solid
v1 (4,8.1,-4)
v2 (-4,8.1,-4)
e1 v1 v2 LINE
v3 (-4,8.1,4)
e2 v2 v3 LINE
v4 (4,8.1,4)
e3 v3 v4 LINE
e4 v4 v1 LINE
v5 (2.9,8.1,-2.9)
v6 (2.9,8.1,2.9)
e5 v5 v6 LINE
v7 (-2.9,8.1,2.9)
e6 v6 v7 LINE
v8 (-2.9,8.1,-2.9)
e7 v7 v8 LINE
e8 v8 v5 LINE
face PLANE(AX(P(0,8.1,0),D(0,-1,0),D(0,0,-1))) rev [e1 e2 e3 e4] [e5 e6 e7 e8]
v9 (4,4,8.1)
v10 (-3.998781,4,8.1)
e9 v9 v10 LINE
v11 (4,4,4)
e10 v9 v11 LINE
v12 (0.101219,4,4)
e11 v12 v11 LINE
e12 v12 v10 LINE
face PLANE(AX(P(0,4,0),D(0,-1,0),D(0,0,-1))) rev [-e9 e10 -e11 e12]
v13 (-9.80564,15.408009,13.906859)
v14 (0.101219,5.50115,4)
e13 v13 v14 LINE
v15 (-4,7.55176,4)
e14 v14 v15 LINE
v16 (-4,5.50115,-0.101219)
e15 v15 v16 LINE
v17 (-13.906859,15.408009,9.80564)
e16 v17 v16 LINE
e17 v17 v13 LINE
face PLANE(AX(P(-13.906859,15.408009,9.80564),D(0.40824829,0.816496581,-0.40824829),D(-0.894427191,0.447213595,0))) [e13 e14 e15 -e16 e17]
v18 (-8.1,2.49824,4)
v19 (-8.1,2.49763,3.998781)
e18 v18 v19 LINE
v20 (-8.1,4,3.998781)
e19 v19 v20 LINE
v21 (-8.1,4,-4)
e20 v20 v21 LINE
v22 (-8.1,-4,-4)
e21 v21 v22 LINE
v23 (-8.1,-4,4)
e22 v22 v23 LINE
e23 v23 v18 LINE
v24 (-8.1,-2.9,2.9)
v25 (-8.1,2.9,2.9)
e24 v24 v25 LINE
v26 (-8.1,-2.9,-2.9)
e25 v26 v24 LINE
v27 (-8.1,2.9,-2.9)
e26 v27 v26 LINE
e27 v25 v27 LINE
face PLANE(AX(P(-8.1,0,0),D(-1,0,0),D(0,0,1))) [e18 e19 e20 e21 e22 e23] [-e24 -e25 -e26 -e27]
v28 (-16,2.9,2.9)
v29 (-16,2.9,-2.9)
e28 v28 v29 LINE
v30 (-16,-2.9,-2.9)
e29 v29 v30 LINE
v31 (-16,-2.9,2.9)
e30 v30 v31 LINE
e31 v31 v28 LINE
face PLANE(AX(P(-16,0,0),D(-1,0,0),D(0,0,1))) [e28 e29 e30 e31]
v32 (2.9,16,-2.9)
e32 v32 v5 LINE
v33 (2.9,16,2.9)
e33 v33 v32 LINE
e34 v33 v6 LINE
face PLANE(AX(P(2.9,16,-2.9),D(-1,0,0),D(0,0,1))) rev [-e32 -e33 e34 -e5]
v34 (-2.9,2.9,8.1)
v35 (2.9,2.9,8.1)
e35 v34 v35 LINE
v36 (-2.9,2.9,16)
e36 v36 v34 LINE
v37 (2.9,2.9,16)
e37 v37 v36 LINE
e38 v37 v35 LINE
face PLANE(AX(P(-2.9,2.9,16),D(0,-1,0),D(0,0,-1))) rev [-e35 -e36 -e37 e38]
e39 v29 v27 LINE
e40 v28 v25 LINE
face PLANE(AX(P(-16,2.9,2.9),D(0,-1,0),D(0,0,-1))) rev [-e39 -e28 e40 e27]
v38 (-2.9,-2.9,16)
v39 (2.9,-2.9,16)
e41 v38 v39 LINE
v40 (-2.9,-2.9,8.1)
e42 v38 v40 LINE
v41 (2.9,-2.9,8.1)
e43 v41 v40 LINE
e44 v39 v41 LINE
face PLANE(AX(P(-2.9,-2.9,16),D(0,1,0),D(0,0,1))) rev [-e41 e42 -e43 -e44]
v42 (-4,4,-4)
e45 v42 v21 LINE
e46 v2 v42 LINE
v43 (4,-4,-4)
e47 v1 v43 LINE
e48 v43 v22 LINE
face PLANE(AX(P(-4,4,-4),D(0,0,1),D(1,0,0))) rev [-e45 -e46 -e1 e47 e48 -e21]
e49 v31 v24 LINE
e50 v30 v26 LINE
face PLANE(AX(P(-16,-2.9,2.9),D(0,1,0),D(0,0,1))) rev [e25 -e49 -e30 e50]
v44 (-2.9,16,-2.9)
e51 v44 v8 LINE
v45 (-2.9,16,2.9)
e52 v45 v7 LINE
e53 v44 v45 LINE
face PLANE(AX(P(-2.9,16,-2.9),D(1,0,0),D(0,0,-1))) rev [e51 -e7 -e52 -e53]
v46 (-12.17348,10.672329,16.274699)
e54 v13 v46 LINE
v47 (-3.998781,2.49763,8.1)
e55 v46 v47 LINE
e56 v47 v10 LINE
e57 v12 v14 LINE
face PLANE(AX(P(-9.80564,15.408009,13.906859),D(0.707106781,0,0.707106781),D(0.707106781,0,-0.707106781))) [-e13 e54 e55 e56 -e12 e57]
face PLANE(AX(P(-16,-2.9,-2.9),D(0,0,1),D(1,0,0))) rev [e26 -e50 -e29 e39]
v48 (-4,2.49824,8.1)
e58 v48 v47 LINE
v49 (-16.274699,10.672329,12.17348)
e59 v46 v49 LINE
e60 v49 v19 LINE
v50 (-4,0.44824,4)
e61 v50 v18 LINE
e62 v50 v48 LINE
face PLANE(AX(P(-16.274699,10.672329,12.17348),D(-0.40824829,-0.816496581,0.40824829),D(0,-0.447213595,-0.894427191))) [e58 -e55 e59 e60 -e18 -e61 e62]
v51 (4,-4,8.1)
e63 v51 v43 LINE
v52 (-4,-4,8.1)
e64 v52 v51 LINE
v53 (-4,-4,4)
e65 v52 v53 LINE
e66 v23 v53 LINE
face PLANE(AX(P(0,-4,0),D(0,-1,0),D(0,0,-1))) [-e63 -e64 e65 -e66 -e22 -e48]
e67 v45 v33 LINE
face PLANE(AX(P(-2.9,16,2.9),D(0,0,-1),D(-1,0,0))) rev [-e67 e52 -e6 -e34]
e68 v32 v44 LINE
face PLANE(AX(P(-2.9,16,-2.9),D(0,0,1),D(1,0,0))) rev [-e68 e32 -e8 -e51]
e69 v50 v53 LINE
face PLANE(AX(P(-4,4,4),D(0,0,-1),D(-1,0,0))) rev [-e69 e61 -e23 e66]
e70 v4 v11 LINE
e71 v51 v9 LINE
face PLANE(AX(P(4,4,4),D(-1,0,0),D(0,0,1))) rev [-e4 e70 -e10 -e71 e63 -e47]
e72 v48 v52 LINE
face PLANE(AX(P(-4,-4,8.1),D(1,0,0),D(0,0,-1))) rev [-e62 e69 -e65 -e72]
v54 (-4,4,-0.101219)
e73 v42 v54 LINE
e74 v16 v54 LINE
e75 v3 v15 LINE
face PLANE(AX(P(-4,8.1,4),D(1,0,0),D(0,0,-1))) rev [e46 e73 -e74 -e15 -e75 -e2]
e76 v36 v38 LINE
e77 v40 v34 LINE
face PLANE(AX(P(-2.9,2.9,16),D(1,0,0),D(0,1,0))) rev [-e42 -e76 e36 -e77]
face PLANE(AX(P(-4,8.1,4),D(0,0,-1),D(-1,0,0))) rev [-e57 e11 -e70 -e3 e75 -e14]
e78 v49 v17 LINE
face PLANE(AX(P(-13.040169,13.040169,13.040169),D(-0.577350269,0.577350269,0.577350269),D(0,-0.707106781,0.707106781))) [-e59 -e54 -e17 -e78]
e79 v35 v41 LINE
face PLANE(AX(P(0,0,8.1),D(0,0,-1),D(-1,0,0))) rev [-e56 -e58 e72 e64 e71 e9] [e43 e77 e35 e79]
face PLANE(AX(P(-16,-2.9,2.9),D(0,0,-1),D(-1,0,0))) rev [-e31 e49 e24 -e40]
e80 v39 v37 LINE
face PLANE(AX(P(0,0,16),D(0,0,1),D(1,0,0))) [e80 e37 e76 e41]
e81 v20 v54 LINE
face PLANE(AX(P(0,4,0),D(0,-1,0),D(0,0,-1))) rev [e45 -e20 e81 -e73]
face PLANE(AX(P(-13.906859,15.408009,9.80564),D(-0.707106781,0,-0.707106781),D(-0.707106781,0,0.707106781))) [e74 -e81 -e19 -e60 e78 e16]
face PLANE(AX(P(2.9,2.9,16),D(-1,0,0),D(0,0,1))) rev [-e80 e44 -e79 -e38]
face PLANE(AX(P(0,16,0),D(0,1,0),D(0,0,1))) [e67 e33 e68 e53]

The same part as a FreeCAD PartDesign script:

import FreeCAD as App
import Part
import Sketcher
from FreeCAD import Vector
Q = App.Units.Quantity

doc = App.newDocument("Part")
body = doc.addObject("PartDesign::Body", "Body")

sketch1 = body.newObject("Sketcher::SketchObject", "Sketch")
sketch1.AttachmentSupport = (doc.getObject("XZ_Plane"), [""])
sketch1.MapMode = "FlatFace"
sketch1.addGeometry([
    Part.LineSegment(Vector(-4, -4, 0), Vector(-4, 4, 0)),
    Part.LineSegment(Vector(-4, 4, 0), Vector(4, 4, 0)),
    Part.LineSegment(Vector(4, 4, 0), Vector(4, -4, 0)),
    Part.LineSegment(Vector(4, -4, 0), Vector(-4, -4, 0)),
], False)
sketch1.addConstraint([
    Sketcher.Constraint("Coincident", 0, 2, 1, 1),
    Sketcher.Constraint("Coincident", 1, 2, 2, 1),
    Sketcher.Constraint("Coincident", 2, 2, 3, 1),
    Sketcher.Constraint("Coincident", 3, 2, 0, 1),
    Sketcher.Constraint("Vertical", 0),
    Sketcher.Constraint("Horizontal", 1),
    Sketcher.Constraint("Vertical", 2),
    Sketcher.Constraint("Horizontal", 3),
    Sketcher.Constraint("Symmetric", 0, 2, 2, 2, -1, 1),
    Sketcher.Constraint("Equal", 3, 0),
    Sketcher.Constraint("DistanceX", 1, 1, 1, 2, Q("8 mm")),
])
pad1 = body.newObject("PartDesign::Pad", "Pad")
pad1.Profile = sketch1
pad1.Length = 8
pad1.Midplane = True

sketch2 = body.newObject("Sketcher::SketchObject", "Sketch001")
sketch2.AttachmentSupport = (doc.getObject("XY_Plane"), [""])
sketch2.MapMode = "FlatFace"
sketch2.AttachmentOffset = App.Placement(Vector(0, 0, 4), App.Rotation())
sketch2.addGeometry([
    Part.LineSegment(Vector(-3, 3, 0), Vector(-3, -3, 0)),
    Part.LineSegment(Vector(-3, -3, 0), Vector(3, -3, 0)),
    Part.LineSegment(Vector(3, -3, 0), Vector(3, 3, 0)),
    Part.LineSegment(Vector(3, 3, 0), Vector(-3, 3, 0)),
], False)
sketch2.addConstraint([
    Sketcher.Constraint("Coincident", 0, 2, 1, 1),
    Sketcher.Constraint("Coincident", 1, 2, 2, 1),
    Sketcher.Constraint("Coincident", 2, 2, 3, 1),
    Sketcher.Constraint("Coincident", 3, 2, 0, 1),
    Sketcher.Constraint("Vertical", 0),
    Sketcher.Constraint("Horizontal", 1),
    Sketcher.Constraint("Vertical", 2),
    Sketcher.Constraint("Horizontal", 3),
    Sketcher.Constraint("Symmetric", 0, 2, 2, 2, -1, 1),
    Sketcher.Constraint("Equal", 3, 0),
    Sketcher.Constraint("DistanceX", 1, 1, 1, 2, Q("5.8 mm")),
])
pad2 = body.newObject("PartDesign::Pad", "Pad001")
pad2.Profile = sketch2
pad2.Length = 12

sketch3 = body.newObject("Sketcher::SketchObject", "Sketch002")
sketch3.AttachmentSupport = (doc.getObject("XZ_Plane"), [""])
sketch3.MapMode = "FlatFace"
sketch3.AttachmentOffset = App.Placement(Vector(0, 0, -4), App.Rotation())
sketch3.addGeometry([
    Part.LineSegment(Vector(-3, -3, 0), Vector(-3, 3, 0)),
    Part.LineSegment(Vector(-3, 3, 0), Vector(3, 3, 0)),
    Part.LineSegment(Vector(3, 3, 0), Vector(3, -3, 0)),
    Part.LineSegment(Vector(3, -3, 0), Vector(-3, -3, 0)),
], False)
sketch3.addConstraint([
    Sketcher.Constraint("Coincident", 0, 2, 1, 1),
    Sketcher.Constraint("Coincident", 1, 2, 2, 1),
    Sketcher.Constraint("Coincident", 2, 2, 3, 1),
    Sketcher.Constraint("Coincident", 3, 2, 0, 1),
    Sketcher.Constraint("Vertical", 0),
    Sketcher.Constraint("Horizontal", 1),
    Sketcher.Constraint("Vertical", 2),
    Sketcher.Constraint("Horizontal", 3),
    Sketcher.Constraint("Symmetric", 0, 2, 2, 2, -1, 1),
    Sketcher.Constraint("Equal", 3, 0),
    Sketcher.Constraint("DistanceX", 1, 1, 1, 2, Q("5.8 mm")),
])
pad3 = body.newObject("PartDesign::Pad", "Pad002")
pad3.Profile = sketch3
pad3.Length = 12
pad3.Reversed = True

sketch4 = body.newObject("Sketcher::SketchObject", "Sketch003")
sketch4.AttachmentSupport = (doc.getObject("YZ_Plane"), [""])
sketch4.MapMode = "FlatFace"
sketch4.AttachmentOffset = App.Placement(Vector(0, 0, -4), App.Rotation())
sketch4.addGeometry([
    Part.LineSegment(Vector(3, -3, 0), Vector(-3, -3, 0)),
    Part.LineSegment(Vector(-3, -3, 0), Vector(-3, 3, 0)),
    Part.LineSegment(Vector(-3, 3, 0), Vector(3, 3, 0)),
    Part.LineSegment(Vector(3, 3, 0), Vector(3, -3, 0)),
], False)
sketch4.addConstraint([
    Sketcher.Constraint("Coincident", 0, 2, 1, 1),
    Sketcher.Constraint("Coincident", 1, 2, 2, 1),
    Sketcher.Constraint("Coincident", 2, 2, 3, 1),
    Sketcher.Constraint("Coincident", 3, 2, 0, 1),
    Sketcher.Constraint("Horizontal", 0),
    Sketcher.Constraint("Vertical", 1),
    Sketcher.Constraint("Horizontal", 2),
    Sketcher.Constraint("Vertical", 3),
    Sketcher.Constraint("Symmetric", 0, 2, 2, 2, -1, 1),
    Sketcher.Constraint("Equal", 2, 1),
    Sketcher.Constraint("DistanceX", 0, 2, 0, 1, Q("5.8 mm")),
])
pad4 = body.newObject("PartDesign::Pad", "Pad003")
pad4.Profile = sketch4
pad4.Length = 12
pad4.Reversed = True

sketch5 = body.newObject("Sketcher::SketchObject", "Sketch004")
sketch5.Placement = App.Placement(Vector(-7.266667, 7.266667, 7.266667), App.Rotation(Vector(-0.816496581, -0.40824829, -0.40824829), Vector(0, 0.707106781, -0.707106781), Vector(0.577350269, -0.577350269, -0.577350269), "ZXY"))
sketch5.addGeometry([
    Part.LineSegment(Vector(1, 4, 0), Vector(-4, 1, 0)),
    Part.LineSegment(Vector(-4, 1, 0), Vector(-1, -4, 0)),
    Part.LineSegment(Vector(-1, -4, 0), Vector(4, -1, 0)),
    Part.LineSegment(Vector(4, -1, 0), Vector(1, 4, 0)),
], False)
sketch5.addConstraint([
    Sketcher.Constraint("Coincident", 0, 2, 1, 1),
    Sketcher.Constraint("Coincident", 1, 2, 2, 1),
    Sketcher.Constraint("Coincident", 2, 2, 3, 1),
    Sketcher.Constraint("Coincident", 3, 2, 0, 1),
    Sketcher.Constraint("Symmetric", 0, 2, 2, 2, -1, 1),
    Sketcher.Constraint("Symmetric", 1, 2, 3, 2, -1, 1),
    Sketcher.Constraint("Perpendicular", 0, 1),
    Sketcher.Constraint("Equal", 0, 1),
    Sketcher.Constraint("Angle", 0, Q("-150 deg")),
    Sketcher.Constraint("Distance", 0, Q("5.8 mm")),
])
pad5 = body.newObject("PartDesign::Pad", "Pad004")
pad5.Profile = sketch5
pad5.Length = 9.296043

sketch6 = body.newObject("Sketcher::SketchObject", "Sketch005")
sketch6.Placement = App.Placement(Vector(-7.266667, 7.266667, 7.266667), App.Rotation(Vector(-0.816496581, -0.40824829, -0.40824829), Vector(0, 0.707106781, -0.707106781), Vector(0.577350269, -0.577350269, -0.577350269), "ZXY"))
sketch6.addGeometry([
    Part.LineSegment(Vector(1, 4, 0), Vector(-4, 1, 0)),
    Part.LineSegment(Vector(-4, 1, 0), Vector(-1, -4, 0)),
    Part.LineSegment(Vector(-1, -4, 0), Vector(4, -1, 0)),
    Part.LineSegment(Vector(4, -1, 0), Vector(1, 4, 0)),
], False)
sketch6.addConstraint([
    Sketcher.Constraint("Coincident", 0, 2, 1, 1),
    Sketcher.Constraint("Coincident", 1, 2, 2, 1),
    Sketcher.Constraint("Coincident", 2, 2, 3, 1),
    Sketcher.Constraint("Coincident", 3, 2, 0, 1),
    Sketcher.Constraint("Symmetric", 0, 2, 2, 2, -1, 1),
    Sketcher.Constraint("Symmetric", 1, 2, 3, 2, -1, 1),
    Sketcher.Constraint("Perpendicular", 0, 1),
    Sketcher.Constraint("Equal", 0, 1),
    Sketcher.Constraint("Angle", 0, Q("-150 deg")),
    Sketcher.Constraint("Distance", 0, Q("5.8 mm")),
])
pad6 = body.newObject("PartDesign::Pad", "Pad005")
pad6.Profile = sketch6
pad6.Length = 10
pad6.Reversed = True

sketch7 = body.newObject("Sketcher::SketchObject", "Sketch006")
sketch7.AttachmentSupport = (doc.getObject("YZ_Plane"), [""])
sketch7.MapMode = "FlatFace"
sketch7.AttachmentOffset = App.Placement(Vector(0, 0, -4), App.Rotation())
sketch7.addGeometry([
    Part.LineSegment(Vector(4, -4, 0), Vector(-4, -4, 0)),
    Part.LineSegment(Vector(-4, -4, 0), Vector(-4, 4, 0)),
    Part.LineSegment(Vector(-4, 4, 0), Vector(4, 4, 0)),
    Part.LineSegment(Vector(4, 4, 0), Vector(4, -4, 0)),
], False)
sketch7.addConstraint([
    Sketcher.Constraint("Coincident", 0, 2, 1, 1),
    Sketcher.Constraint("Coincident", 1, 2, 2, 1),
    Sketcher.Constraint("Coincident", 2, 2, 3, 1),
    Sketcher.Constraint("Coincident", 3, 2, 0, 1),
    Sketcher.Constraint("Horizontal", 0),
    Sketcher.Constraint("Vertical", 1),
    Sketcher.Constraint("Horizontal", 2),
    Sketcher.Constraint("Vertical", 3),
    Sketcher.Constraint("Symmetric", 0, 2, 2, 2, -1, 1),
    Sketcher.Constraint("Equal", 2, 1),
    Sketcher.Constraint("DistanceX", 0, 2, 0, 1, Q("8 mm")),
])
pad7 = body.newObject("PartDesign::Pad", "Pad006")
pad7.Profile = sketch7
pad7.Length = 4.1
pad7.Reversed = True

sketch8 = body.newObject("Sketcher::SketchObject", "Sketch007")
sketch8.AttachmentSupport = (doc.getObject("XY_Plane"), [""])
sketch8.MapMode = "FlatFace"
sketch8.AttachmentOffset = App.Placement(Vector(0, 0, 4), App.Rotation())
sketch8.addGeometry([
    Part.LineSegment(Vector(-4, 4, 0), Vector(-4, -4, 0)),
    Part.LineSegment(Vector(-4, -4, 0), Vector(4, -4, 0)),
    Part.LineSegment(Vector(4, -4, 0), Vector(4, 4, 0)),
    Part.LineSegment(Vector(4, 4, 0), Vector(-4, 4, 0)),
], False)
sketch8.addConstraint([
    Sketcher.Constraint("Coincident", 0, 2, 1, 1),
    Sketcher.Constraint("Coincident", 1, 2, 2, 1),
    Sketcher.Constraint("Coincident", 2, 2, 3, 1),
    Sketcher.Constraint("Coincident", 3, 2, 0, 1),
    Sketcher.Constraint("Vertical", 0),
    Sketcher.Constraint("Horizontal", 1),
    Sketcher.Constraint("Vertical", 2),
    Sketcher.Constraint("Horizontal", 3),
    Sketcher.Constraint("Symmetric", 0, 2, 2, 2, -1, 1),
    Sketcher.Constraint("Equal", 3, 0),
    Sketcher.Constraint("DistanceX", 1, 1, 1, 2, Q("8 mm")),
])
pad8 = body.newObject("PartDesign::Pad", "Pad007")
pad8.Profile = sketch8
pad8.Length = 4.1

sketch9 = body.newObject("Sketcher::SketchObject", "Sketch008")
sketch9.AttachmentSupport = (doc.getObject("XZ_Plane"), [""])
sketch9.MapMode = "FlatFace"
sketch9.AttachmentOffset = App.Placement(Vector(0, 0, -4), App.Rotation())
sketch9.addGeometry([
    Part.LineSegment(Vector(-4, -4, 0), Vector(-4, 4, 0)),
    Part.LineSegment(Vector(-4, 4, 0), Vector(4, 4, 0)),
    Part.LineSegment(Vector(4, 4, 0), Vector(4, -4, 0)),
    Part.LineSegment(Vector(4, -4, 0), Vector(-4, -4, 0)),
], False)
sketch9.addConstraint([
    Sketcher.Constraint("Coincident", 0, 2, 1, 1),
    Sketcher.Constraint("Coincident", 1, 2, 2, 1),
    Sketcher.Constraint("Coincident", 2, 2, 3, 1),
    Sketcher.Constraint("Coincident", 3, 2, 0, 1),
    Sketcher.Constraint("Vertical", 0),
    Sketcher.Constraint("Horizontal", 1),
    Sketcher.Constraint("Vertical", 2),
    Sketcher.Constraint("Horizontal", 3),
    Sketcher.Constraint("Symmetric", 0, 2, 2, 2, -1, 1),
    Sketcher.Constraint("Equal", 3, 0),
    Sketcher.Constraint("DistanceX", 1, 1, 1, 2, Q("8 mm")),
])
pad9 = body.newObject("PartDesign::Pad", "Pad008")
pad9.Profile = sketch9
pad9.Length = 4.1
pad9.Reversed = True

doc.recompute()
